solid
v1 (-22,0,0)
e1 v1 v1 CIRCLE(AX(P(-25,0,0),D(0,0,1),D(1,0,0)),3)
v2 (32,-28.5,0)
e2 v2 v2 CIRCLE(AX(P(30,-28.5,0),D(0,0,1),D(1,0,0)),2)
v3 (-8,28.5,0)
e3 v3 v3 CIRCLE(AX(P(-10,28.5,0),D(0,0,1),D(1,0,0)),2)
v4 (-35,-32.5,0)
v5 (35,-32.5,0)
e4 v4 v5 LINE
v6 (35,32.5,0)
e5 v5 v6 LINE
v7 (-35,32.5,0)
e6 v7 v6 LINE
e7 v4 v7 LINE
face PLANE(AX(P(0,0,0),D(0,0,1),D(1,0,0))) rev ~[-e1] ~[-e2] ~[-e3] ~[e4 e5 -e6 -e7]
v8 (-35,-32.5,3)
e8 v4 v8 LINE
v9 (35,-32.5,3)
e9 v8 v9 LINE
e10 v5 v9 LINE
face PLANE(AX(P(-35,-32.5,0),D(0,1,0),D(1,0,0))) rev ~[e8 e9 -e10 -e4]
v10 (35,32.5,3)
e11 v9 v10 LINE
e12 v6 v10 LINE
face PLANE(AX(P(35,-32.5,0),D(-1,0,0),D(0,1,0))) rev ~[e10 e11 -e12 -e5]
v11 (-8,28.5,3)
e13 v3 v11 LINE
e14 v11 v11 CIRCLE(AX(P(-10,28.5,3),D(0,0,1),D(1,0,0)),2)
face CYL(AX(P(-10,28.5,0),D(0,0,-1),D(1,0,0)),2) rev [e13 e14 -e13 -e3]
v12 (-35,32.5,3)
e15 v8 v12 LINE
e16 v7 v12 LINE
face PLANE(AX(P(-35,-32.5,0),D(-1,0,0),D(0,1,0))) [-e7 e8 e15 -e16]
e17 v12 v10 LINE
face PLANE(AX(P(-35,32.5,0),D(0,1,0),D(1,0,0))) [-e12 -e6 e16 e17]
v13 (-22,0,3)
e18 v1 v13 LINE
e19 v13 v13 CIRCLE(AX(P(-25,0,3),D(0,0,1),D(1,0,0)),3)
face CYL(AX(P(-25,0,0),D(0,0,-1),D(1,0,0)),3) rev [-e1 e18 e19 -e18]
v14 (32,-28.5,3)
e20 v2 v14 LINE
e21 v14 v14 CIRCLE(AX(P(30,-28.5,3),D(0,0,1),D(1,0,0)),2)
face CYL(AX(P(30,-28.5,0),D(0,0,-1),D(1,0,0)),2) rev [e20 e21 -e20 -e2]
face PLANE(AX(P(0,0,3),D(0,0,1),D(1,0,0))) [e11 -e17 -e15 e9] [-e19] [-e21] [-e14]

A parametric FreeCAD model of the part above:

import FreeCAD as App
import Part
import Sketcher
from FreeCAD import Vector
Q = App.Units.Quantity

doc = App.newDocument("Part")
body = doc.addObject("PartDesign::Body", "Body")

# Sketch on XY plane
sketch1 = body.newObject("Sketcher::SketchObject", "Sketch")
sketch1.AttachmentSupport = (doc.getObject("XY_Plane"), [""])
sketch1.MapMode = "FlatFace"
sketch1.addGeometry([
    Part.LineSegment(Vector(-35, 32.5, 0), Vector(-35, -32.5, 0)),  # 0
    Part.LineSegment(Vector(-35, -32.5, 0), Vector(35, -32.5, 0)),  # 1
    Part.LineSegment(Vector(35, -32.5, 0), Vector(35, 32.5, 0)),  # 2
    Part.LineSegment(Vector(35, 32.5, 0), Vector(-35, 32.5, 0)),  # 3
    Part.Circle(Vector(30, -28.5, 0), Vector(0, 0, 1), 2),  # 4
    Part.Circle(Vector(-25, 0, 0), Vector(0, 0, 1), 3),  # 5
    Part.Circle(Vector(-10, 28.5, 0), Vector(0, 0, 1), 2),  # 6
], False)
sketch1.addConstraint([
    Sketcher.Constraint("Coincident", 0, 2, 1, 1),
    Sketcher.Constraint("Coincident", 1, 2, 2, 1),
    Sketcher.Constraint("Coincident", 2, 2, 3, 1),
    Sketcher.Constraint("Coincident", 3, 2, 0, 1),
    Sketcher.Constraint("Vertical", 0),
    Sketcher.Constraint("Horizontal", 1),
    Sketcher.Constraint("Vertical", 2),
    Sketcher.Constraint("Horizontal", 3),
    Sketcher.Constraint("Equal", 4, 6),
    Sketcher.Constraint("Symmetric", 0, 2, 2, 2, -1, 1),
    Sketcher.Constraint("PointOnObject", 5, 3, -1),
    Sketcher.Constraint("Diameter", 4, Q("4 mm")),
    Sketcher.Constraint("Diameter", 5, Q("6 mm")),
    Sketcher.Constraint("DistanceX", 1, 1, 1, 2, Q("70 mm")),
    Sketcher.Constraint("DistanceY", 0, 2, 0, 1, Q("65 mm")),
    Sketcher.Constraint("DistanceX", -1, 1, 4, 3, Q("30 mm")),
    Sketcher.Constraint("DistanceX", 5, 3, -1, 1, Q("25 mm")),
    Sketcher.Constraint("DistanceX", 6, 3, -1, 1, Q("10 mm")),
    Sketcher.Constraint("DistanceY", 4, 3, 6, 3, Q("57 mm")),
    Sketcher.Constraint("DistanceY", 0, 2, 4, 3, Q("4 mm")),
])
pad1 = body.newObject("PartDesign::Pad", "Pad")
pad1.Profile = sketch1
pad1.Length = 3

doc.recompute()
